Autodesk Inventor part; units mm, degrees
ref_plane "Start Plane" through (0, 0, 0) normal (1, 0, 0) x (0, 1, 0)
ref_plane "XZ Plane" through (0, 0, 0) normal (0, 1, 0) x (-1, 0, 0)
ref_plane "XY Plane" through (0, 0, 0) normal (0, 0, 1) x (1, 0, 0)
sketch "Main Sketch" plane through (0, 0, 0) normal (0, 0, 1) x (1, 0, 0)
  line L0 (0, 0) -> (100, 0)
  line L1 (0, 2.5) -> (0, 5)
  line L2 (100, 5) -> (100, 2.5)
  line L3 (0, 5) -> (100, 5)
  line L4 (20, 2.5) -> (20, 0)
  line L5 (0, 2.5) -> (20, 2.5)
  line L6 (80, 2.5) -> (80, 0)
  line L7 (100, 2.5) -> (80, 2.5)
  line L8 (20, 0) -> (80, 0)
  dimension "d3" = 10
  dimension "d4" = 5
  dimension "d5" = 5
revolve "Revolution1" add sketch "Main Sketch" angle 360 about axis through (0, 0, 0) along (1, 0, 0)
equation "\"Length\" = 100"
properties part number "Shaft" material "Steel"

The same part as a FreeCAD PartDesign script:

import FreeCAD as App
import Part
import Sketcher
Q = App.Units.Quantity

doc = App.newDocument("Part")
params = doc.addObject("Spreadsheet::Sheet", "Params")
for row, (alias, value) in enumerate([
    ("sketch1_width", "60 mm"),
    ("sketch1_width2", "20 mm"),
    ("revolution_angle", "360 deg"),
], start=1):
    params.set(f"A{row}", alias)
    params.set(f"B{row}", "=" + value)
    params.setAlias(f"B{row}", alias)

body = doc.addObject("PartDesign::Body", "Body")

# Sketch on XY plane
sketch1 = doc.addObject("Sketcher::SketchObject", "Sketch")
body.addObject(sketch1)
sketch1.AttachmentSupport = (doc.XY_Plane, [""])
sketch1.MapMode = "FlatFace"
sketch1.addGeometry(Part.LineSegment(App.Vector(20, 2.5, 0), App.Vector(20, 0, 0)), False)
sketch1.addGeometry(Part.LineSegment(App.Vector(20, 0, 0), App.Vector(80, 0, 0)), False)
sketch1.addGeometry(Part.LineSegment(App.Vector(80, 0, 0), App.Vector(80, 2.5, 0)), False)
sketch1.addGeometry(Part.LineSegment(App.Vector(80, 2.5, 0), App.Vector(100, 2.5, 0)), False)
sketch1.addGeometry(Part.LineSegment(App.Vector(100, 2.5, 0), App.Vector(100, 5, 0)), False)
sketch1.addGeometry(Part.LineSegment(App.Vector(100, 5, 0), App.Vector(0, 5, 0)), False)
sketch1.addGeometry(Part.LineSegment(App.Vector(0, 5, 0), App.Vector(0, 2.5, 0)), False)
sketch1.addGeometry(Part.LineSegment(App.Vector(0, 2.5, 0), App.Vector(20, 2.5, 0)), False)
sketch1.addConstraint(Sketcher.Constraint("Coincident", 0, 2, 1, 1))
sketch1.addConstraint(Sketcher.Constraint("Coincident", 1, 2, 2, 1))
sketch1.addConstraint(Sketcher.Constraint("Coincident", 2, 2, 3, 1))
sketch1.addConstraint(Sketcher.Constraint("Coincident", 3, 2, 4, 1))
sketch1.addConstraint(Sketcher.Constraint("Coincident", 4, 2, 5, 1))
sketch1.addConstraint(Sketcher.Constraint("Coincident", 5, 2, 6, 1))
sketch1.addConstraint(Sketcher.Constraint("Coincident", 6, 2, 7, 1))
sketch1.addConstraint(Sketcher.Constraint("Coincident", 7, 2, 0, 1))
sketch1.addConstraint(Sketcher.Constraint("Vertical", 0))
sketch1.addConstraint(Sketcher.Constraint("Horizontal", 1))
sketch1.addConstraint(Sketcher.Constraint("Vertical", 2))
sketch1.addConstraint(Sketcher.Constraint("Horizontal", 3))
sketch1.addConstraint(Sketcher.Constraint("Vertical", 4))
sketch1.addConstraint(Sketcher.Constraint("Horizontal", 5))
sketch1.addConstraint(Sketcher.Constraint("Vertical", 6))
sketch1.addConstraint(Sketcher.Constraint("Horizontal", 7))
sketch1.addConstraint(Sketcher.Constraint("PointOnObject", 0, 2, -1))
sketch1.addConstraint(Sketcher.Constraint("PointOnObject", 5, 2, -2))
sketch1.addConstraint(Sketcher.Constraint("Horizontal", 3, 2, 6, 2))
sketch1.addConstraint(Sketcher.Constraint("Equal", 3, 7))
sketch1.addConstraint(Sketcher.Constraint("Equal", 2, 4))
sketch1.addConstraint(Sketcher.Constraint("DistanceY", -1, 1, 4, 2, Q("5 mm")))
sketch1.addConstraint(Sketcher.Constraint("DistanceX", 1, 1, 1, 2, Q("60 mm")))
sketch1.addConstraint(Sketcher.Constraint("DistanceX", 3, 1, 3, 2, Q("20 mm")))
sketch1.setExpression("Constraints[22]", "Params.sketch1_width")
sketch1.setExpression("Constraints[23]", "Params.sketch1_width2")
revolution = doc.addObject("PartDesign::Revolution", "Revolution")
body.addObject(revolution)
revolution.Profile = sketch1
revolution.ReferenceAxis = (sketch1, ["H_Axis"])
revolution.setExpression("Angle", "Params.revolution_angle")

doc.recompute()
